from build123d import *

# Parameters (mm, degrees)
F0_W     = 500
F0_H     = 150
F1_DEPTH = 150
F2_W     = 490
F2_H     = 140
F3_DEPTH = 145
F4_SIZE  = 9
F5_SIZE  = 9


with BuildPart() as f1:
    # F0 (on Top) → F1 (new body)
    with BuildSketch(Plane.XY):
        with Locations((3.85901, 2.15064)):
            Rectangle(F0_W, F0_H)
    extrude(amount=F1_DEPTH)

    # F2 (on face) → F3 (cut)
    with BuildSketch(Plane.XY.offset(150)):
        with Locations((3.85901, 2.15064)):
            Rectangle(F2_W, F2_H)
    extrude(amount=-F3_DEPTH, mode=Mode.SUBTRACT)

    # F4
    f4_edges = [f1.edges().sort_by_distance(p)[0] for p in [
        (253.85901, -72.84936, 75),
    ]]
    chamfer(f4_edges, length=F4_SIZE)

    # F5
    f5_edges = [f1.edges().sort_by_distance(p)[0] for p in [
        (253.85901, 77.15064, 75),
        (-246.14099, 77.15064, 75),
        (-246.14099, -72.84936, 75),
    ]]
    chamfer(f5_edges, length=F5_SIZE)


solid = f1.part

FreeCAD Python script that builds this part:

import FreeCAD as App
import Part
import Sketcher
from FreeCAD import Vector
Q = App.Units.Quantity


def edges_at(feature, points):
    """Names of the edges that pass closest to the given points."""
    edges = feature.Shape.Edges
    near = lambda p: min(range(len(edges)), key=lambda i: edges[i].distToShape(Part.Vertex(*p))[0])
    return sorted({f"Edge{near(p) + 1}" for p in points})

doc = App.newDocument("Part")
params = doc.addObject("Spreadsheet::Sheet", "Params")
for row, (alias, value) in enumerate([
    ("sketch1_width", "500 mm"),
    ("sketch1_height", "150 mm"),
    ("pad1_length", "150 mm"),
    ("sketch2_width", "490 mm"),
    ("sketch2_height", "140 mm"),
    ("pocket1_length", "145 mm"),
    ("chamfer_size", "9 mm"),
    ("chamfer2_size", "9 mm"),
], start=1):
    params.set(f"A{row}", alias)
    params.set(f"B{row}", "=" + value)
    params.setAlias(f"B{row}", alias)

body = doc.addObject("PartDesign::Body", "Body")

# Sketch on XY plane
sketch1 = doc.addObject("Sketcher::SketchObject", "Sketch")
body.addObject(sketch1)
sketch1.AttachmentSupport = (doc.XY_Plane, [""])
sketch1.MapMode = "FlatFace"
sketch1.addGeometry(Part.LineSegment(Vector(-246.14099, 77.15064, 0), Vector(-246.14099, -72.84936, 0)), False)
sketch1.addGeometry(Part.LineSegment(Vector(-246.14099, -72.84936, 0), Vector(253.85901, -72.84936, 0)), False)
sketch1.addGeometry(Part.LineSegment(Vector(253.85901, -72.84936, 0), Vector(253.85901, 77.15064, 0)), False)
sketch1.addGeometry(Part.LineSegment(Vector(253.85901, 77.15064, 0), Vector(-246.14099, 77.15064, 0)), False)
sketch1.addConstraint(Sketcher.Constraint("Coincident", 0, 2, 1, 1))
sketch1.addConstraint(Sketcher.Constraint("Coincident", 1, 2, 2, 1))
sketch1.addConstraint(Sketcher.Constraint("Coincident", 2, 2, 3, 1))
sketch1.addConstraint(Sketcher.Constraint("Coincident", 3, 2, 0, 1))
sketch1.addConstraint(Sketcher.Constraint("Vertical", 0))
sketch1.addConstraint(Sketcher.Constraint("Horizontal", 1))
sketch1.addConstraint(Sketcher.Constraint("Vertical", 2))
sketch1.addConstraint(Sketcher.Constraint("Horizontal", 3))
sketch1.addConstraint(Sketcher.Constraint("DistanceX", 1, 1, 1, 2, Q("500 mm")))
sketch1.addConstraint(Sketcher.Constraint("DistanceY", 0, 2, 0, 1, Q("150 mm")))
sketch1.addConstraint(Sketcher.Constraint("DistanceX", 0, 2, -1, 1, Q("246.14099 mm")))
sketch1.addConstraint(Sketcher.Constraint("DistanceY", 0, 2, -1, 1, Q("72.84936 mm")))
sketch1.setExpression("Constraints[8]", "Params.sketch1_width")
sketch1.setExpression("Constraints[9]", "Params.sketch1_height")
pad1 = doc.addObject("PartDesign::Pad", "Pad")
body.addObject(pad1)
pad1.Profile = sketch1
pad1.setExpression("Length", "Params.pad1_length")

# Sketch on XY plane
sketch2 = doc.addObject("Sketcher::SketchObject", "Sketch001")
body.addObject(sketch2)
sketch2.AttachmentSupport = (doc.XY_Plane, [""])
sketch2.MapMode = "FlatFace"
sketch2.AttachmentOffset = App.Placement(Vector(0, 0, 150), App.Rotation())
sketch2.addGeometry(Part.LineSegment(Vector(-241.14099, 72.15064, 0), Vector(-241.14099, -67.84936, 0)), False)
sketch2.addGeometry(Part.LineSegment(Vector(-241.14099, -67.84936, 0), Vector(248.85901, -67.84936, 0)), False)
sketch2.addGeometry(Part.LineSegment(Vector(248.85901, -67.84936, 0), Vector(248.85901, 72.15064, 0)), False)
sketch2.addGeometry(Part.LineSegment(Vector(248.85901, 72.15064, 0), Vector(-241.14099, 72.15064, 0)), False)
sketch2.addConstraint(Sketcher.Constraint("Coincident", 0, 2, 1, 1))
sketch2.addConstraint(Sketcher.Constraint("Coincident", 1, 2, 2, 1))
sketch2.addConstraint(Sketcher.Constraint("Coincident", 2, 2, 3, 1))
sketch2.addConstraint(Sketcher.Constraint("Coincident", 3, 2, 0, 1))
sketch2.addConstraint(Sketcher.Constraint("Vertical", 0))
sketch2.addConstraint(Sketcher.Constraint("Horizontal", 1))
sketch2.addConstraint(Sketcher.Constraint("Vertical", 2))
sketch2.addConstraint(Sketcher.Constraint("Horizontal", 3))
sketch2.addConstraint(Sketcher.Constraint("DistanceX", 1, 1, 1, 2, Q("490 mm")))
sketch2.addConstraint(Sketcher.Constraint("DistanceY", 0, 2, 0, 1, Q("140 mm")))
sketch2.addConstraint(Sketcher.Constraint("DistanceX", 0, 2, -1, 1, Q("241.14099 mm")))
sketch2.addConstraint(Sketcher.Constraint("DistanceY", 0, 2, -1, 1, Q("67.84936 mm")))
sketch2.setExpression("Constraints[8]", "Params.sketch2_width")
sketch2.setExpression("Constraints[9]", "Params.sketch2_height")
pocket1 = doc.addObject("PartDesign::Pocket", "Pocket")
body.addObject(pocket1)
pocket1.Profile = sketch2
pocket1.setExpression("Length", "Params.pocket1_length")
doc.recompute()

chamfer = doc.addObject("PartDesign::Chamfer", "Chamfer")
body.addObject(chamfer)
chamfer.Base = (pocket1, edges_at(pocket1, [(253.859, -72.849, 75)]))
chamfer.setExpression("Size", "Params.chamfer_size")
doc.recompute()

chamfer2 = doc.addObject("PartDesign::Chamfer", "Chamfer001")
body.addObject(chamfer2)
chamfer2.Base = (chamfer, edges_at(chamfer, [(253.859, 77.151, 75), (-246.141, 77.151, 75), (-246.141, -72.849, 75)]))
chamfer2.setExpression("Size", "Params.chamfer2_size")

doc.recompute()
